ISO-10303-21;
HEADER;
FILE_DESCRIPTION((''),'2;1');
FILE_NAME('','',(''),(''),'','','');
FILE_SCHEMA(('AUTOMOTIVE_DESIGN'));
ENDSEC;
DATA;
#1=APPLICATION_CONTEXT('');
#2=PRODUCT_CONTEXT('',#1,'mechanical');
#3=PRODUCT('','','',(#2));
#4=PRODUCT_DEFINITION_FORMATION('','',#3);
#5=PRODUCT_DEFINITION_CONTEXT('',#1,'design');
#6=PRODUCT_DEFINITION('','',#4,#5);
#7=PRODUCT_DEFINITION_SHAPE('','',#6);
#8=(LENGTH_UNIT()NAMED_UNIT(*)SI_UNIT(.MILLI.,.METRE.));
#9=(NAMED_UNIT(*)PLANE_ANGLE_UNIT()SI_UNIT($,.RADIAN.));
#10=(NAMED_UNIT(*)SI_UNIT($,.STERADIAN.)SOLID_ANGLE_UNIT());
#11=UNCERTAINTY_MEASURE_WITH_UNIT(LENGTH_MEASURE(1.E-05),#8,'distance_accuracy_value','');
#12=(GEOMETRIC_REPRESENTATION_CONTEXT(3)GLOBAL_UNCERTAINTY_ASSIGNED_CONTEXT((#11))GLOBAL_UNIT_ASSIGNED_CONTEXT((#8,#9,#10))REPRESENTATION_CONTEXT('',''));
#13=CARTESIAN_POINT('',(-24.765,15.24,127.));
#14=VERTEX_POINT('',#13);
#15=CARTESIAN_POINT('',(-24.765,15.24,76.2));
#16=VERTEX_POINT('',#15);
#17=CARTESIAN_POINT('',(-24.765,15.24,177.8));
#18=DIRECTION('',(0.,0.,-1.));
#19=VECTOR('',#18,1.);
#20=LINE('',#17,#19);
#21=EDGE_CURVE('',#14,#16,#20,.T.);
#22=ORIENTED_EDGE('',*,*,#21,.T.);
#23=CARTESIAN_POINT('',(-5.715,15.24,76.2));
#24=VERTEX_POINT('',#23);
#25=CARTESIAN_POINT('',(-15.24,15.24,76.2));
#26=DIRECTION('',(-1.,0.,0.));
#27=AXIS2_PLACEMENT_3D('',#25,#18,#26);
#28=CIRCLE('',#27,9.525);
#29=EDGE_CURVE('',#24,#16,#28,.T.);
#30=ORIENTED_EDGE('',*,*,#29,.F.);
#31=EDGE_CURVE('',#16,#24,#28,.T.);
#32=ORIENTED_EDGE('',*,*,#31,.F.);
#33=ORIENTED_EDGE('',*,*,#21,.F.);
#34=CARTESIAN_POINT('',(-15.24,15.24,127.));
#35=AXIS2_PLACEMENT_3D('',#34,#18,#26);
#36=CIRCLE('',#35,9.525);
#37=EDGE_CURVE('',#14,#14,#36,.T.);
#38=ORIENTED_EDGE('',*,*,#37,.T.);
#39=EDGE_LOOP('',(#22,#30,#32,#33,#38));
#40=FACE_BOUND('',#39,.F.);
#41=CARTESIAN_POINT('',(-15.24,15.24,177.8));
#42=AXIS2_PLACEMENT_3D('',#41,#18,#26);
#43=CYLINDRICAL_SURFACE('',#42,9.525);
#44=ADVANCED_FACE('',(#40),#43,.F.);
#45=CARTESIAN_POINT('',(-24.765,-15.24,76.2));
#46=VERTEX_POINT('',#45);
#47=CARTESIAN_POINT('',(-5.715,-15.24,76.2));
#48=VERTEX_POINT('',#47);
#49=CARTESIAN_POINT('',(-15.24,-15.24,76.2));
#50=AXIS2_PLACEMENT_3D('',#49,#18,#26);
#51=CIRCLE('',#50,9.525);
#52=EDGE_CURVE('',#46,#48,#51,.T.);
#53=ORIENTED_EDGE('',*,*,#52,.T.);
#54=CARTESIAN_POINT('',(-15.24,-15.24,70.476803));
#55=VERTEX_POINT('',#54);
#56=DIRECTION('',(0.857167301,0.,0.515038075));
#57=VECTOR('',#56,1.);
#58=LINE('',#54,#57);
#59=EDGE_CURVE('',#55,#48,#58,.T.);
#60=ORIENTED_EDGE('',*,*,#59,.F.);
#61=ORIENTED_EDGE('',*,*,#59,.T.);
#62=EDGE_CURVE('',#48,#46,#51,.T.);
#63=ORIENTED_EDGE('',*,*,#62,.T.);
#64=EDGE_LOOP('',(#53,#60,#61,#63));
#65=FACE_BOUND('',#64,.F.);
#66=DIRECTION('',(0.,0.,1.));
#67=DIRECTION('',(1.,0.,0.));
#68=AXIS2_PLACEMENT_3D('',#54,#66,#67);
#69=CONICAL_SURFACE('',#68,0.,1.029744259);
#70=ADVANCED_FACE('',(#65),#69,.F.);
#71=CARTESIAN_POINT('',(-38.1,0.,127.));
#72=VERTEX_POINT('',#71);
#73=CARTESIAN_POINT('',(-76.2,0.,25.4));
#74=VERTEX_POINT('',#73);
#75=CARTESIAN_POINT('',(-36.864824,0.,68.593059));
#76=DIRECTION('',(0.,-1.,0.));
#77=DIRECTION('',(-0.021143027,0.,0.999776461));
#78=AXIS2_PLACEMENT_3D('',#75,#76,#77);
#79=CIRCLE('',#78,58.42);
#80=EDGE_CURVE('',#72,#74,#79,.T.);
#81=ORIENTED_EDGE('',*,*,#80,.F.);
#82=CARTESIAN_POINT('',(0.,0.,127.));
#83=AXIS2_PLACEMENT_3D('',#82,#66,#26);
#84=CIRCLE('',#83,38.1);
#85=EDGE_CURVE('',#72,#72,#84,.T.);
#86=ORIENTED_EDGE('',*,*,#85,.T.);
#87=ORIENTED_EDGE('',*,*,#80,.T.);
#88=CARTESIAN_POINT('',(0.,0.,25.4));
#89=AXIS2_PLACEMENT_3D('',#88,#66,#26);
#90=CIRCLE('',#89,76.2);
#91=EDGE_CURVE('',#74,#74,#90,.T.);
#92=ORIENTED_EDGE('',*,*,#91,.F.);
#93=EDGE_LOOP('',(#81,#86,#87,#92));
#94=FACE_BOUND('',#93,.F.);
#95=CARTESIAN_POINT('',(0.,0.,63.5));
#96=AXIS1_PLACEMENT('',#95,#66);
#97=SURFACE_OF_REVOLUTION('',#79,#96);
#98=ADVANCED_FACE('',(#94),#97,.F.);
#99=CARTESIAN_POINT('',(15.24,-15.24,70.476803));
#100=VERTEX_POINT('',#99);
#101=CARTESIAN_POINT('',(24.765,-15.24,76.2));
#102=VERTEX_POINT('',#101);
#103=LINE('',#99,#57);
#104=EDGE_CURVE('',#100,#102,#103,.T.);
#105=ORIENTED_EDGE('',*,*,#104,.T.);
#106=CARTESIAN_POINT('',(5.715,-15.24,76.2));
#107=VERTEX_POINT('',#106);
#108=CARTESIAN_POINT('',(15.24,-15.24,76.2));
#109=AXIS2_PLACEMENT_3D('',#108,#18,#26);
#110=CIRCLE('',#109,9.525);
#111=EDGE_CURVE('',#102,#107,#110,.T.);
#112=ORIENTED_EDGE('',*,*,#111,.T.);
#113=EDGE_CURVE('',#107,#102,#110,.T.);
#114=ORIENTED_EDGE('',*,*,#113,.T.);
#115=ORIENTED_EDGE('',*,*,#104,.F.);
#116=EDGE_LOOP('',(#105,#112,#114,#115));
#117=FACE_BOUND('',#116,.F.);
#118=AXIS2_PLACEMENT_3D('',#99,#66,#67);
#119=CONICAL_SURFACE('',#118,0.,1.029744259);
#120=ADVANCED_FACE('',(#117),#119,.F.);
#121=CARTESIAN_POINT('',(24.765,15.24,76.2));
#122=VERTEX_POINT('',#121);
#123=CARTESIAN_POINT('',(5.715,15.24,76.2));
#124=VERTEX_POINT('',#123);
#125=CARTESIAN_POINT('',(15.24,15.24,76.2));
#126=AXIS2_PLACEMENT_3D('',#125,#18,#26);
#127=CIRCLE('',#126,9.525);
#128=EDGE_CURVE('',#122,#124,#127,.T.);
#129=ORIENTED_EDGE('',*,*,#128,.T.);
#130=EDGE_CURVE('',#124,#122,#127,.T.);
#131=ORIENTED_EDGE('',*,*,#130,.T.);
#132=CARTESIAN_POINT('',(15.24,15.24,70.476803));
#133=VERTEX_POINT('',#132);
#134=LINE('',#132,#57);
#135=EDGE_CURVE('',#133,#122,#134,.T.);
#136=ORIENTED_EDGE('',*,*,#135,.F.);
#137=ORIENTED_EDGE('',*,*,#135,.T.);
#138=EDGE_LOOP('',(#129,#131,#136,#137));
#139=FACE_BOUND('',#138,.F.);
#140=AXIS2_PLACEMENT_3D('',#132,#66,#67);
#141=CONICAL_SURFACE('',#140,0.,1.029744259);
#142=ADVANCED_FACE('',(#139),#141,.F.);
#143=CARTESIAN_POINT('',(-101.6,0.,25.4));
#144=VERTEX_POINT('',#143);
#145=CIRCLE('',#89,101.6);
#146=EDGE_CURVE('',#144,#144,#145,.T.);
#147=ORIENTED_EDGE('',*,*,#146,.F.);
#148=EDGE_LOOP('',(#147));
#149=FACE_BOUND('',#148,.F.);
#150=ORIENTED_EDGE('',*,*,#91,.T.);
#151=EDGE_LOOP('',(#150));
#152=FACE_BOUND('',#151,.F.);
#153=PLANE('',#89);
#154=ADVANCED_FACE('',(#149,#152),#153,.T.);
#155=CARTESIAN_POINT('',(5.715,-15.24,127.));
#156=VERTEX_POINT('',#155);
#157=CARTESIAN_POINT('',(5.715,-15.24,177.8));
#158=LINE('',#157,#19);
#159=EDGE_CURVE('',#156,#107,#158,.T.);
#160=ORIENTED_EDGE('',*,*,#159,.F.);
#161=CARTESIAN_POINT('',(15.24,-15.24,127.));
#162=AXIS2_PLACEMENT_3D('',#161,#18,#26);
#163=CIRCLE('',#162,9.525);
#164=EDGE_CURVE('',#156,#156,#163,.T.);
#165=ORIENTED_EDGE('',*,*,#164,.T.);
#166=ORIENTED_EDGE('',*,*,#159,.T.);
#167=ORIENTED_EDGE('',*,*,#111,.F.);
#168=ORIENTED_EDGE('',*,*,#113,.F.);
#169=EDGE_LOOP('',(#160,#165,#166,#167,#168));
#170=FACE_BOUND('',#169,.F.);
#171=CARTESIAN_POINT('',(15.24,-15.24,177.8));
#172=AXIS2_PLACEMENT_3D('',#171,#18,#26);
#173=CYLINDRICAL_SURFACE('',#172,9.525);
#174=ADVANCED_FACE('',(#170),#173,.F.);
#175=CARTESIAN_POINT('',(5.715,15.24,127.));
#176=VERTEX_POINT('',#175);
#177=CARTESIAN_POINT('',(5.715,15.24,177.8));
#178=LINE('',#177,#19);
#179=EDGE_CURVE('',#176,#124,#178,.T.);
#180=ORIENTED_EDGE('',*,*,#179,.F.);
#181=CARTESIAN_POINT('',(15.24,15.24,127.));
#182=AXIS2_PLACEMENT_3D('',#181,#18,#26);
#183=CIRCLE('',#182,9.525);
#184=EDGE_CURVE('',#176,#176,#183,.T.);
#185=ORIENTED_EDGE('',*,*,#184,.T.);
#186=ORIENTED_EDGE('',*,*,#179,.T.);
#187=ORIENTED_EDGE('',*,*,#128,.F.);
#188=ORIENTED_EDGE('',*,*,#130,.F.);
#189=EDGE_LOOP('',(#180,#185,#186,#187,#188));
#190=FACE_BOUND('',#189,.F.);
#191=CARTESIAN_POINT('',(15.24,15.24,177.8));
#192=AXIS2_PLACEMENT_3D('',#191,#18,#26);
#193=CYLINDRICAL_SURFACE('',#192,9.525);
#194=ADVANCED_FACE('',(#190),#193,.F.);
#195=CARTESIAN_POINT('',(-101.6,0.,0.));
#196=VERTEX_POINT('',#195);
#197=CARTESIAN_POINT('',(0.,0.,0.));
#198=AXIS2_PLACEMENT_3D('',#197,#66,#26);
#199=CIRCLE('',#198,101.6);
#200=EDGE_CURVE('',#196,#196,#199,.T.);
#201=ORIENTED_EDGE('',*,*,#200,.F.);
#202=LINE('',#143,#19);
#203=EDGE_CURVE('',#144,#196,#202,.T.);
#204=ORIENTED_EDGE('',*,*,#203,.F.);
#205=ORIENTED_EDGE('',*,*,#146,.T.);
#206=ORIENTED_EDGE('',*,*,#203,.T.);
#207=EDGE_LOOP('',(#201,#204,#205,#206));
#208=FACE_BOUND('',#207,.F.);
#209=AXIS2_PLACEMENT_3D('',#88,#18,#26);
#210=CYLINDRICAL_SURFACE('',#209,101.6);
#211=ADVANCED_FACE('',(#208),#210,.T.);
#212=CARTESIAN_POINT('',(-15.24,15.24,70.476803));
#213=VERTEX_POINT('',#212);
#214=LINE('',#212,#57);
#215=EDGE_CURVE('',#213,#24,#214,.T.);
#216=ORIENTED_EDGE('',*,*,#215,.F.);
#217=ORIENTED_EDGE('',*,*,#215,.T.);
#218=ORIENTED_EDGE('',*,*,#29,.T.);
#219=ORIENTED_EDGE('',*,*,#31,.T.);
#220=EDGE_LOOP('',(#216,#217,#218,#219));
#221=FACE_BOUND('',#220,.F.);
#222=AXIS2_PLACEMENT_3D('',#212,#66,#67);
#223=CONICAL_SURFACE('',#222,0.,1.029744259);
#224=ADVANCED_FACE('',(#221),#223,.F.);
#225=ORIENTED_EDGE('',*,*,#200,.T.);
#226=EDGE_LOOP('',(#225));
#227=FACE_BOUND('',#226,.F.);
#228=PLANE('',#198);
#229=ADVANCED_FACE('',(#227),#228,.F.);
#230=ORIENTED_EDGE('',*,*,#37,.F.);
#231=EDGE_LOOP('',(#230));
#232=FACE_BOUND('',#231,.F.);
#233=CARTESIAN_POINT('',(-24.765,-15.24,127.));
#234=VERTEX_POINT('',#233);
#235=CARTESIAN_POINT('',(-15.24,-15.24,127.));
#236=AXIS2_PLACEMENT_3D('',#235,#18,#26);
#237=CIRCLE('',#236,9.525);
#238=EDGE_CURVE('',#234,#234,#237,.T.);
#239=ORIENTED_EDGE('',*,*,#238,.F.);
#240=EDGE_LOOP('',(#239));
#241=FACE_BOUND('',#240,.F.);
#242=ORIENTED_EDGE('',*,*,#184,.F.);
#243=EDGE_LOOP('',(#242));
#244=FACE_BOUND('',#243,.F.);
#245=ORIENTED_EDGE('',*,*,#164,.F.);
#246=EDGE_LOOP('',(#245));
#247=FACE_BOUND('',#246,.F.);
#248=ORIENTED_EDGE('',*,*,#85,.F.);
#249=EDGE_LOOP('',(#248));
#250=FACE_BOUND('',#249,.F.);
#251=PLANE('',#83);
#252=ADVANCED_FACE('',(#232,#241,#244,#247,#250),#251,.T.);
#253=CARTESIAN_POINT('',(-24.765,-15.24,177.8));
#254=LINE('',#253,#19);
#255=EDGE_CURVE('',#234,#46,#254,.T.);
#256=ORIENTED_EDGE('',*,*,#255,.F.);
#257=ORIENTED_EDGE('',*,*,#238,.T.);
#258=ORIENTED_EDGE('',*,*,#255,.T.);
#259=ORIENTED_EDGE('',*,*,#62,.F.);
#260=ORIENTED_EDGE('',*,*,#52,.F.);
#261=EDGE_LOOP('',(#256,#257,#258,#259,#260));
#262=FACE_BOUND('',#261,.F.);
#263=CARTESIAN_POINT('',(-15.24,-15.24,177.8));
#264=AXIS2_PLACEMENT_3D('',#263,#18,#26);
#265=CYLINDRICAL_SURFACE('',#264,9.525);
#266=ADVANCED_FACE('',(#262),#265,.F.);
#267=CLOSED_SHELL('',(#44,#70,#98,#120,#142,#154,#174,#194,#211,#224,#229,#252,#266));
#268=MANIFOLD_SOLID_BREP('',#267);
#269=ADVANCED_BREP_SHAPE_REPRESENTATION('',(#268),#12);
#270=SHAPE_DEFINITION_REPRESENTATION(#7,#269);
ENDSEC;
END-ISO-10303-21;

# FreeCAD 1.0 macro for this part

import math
import FreeCAD as App
import Part
import Sketcher
from FreeCAD import Vector
Q = App.Units.Quantity

doc = App.newDocument("Part")
body = doc.addObject("PartDesign::Body", "Body")

sketch1 = body.newObject("Sketcher::SketchObject", "Sketch")
sketch1.AttachmentSupport = (doc.getObject("XZ_Plane"), [""])
sketch1.MapMode = "FlatFace"
sketch1.addGeometry([
    Part.LineSegment(Vector(-102, 0, 0), Vector(0, 0, 0)),
    Part.LineSegment(Vector(0, 0, 0), Vector(0, 127, 0)),
    Part.LineSegment(Vector(0, 127, 0), Vector(-38, 127, 0)),
    Part.ArcOfCircle(Part.Circle(Vector(-37, 69, 0), Vector(0, 0, 1), 58), math.radians(91), math.radians(228)),
    Part.LineSegment(Vector(-76, 25, 0), Vector(-102, 25, 0)),
    Part.LineSegment(Vector(-102, 25, 0), Vector(-102, 0, 0)),
], False)
sketch1.addConstraint([
    Sketcher.Constraint("Coincident", 0, 2, 1, 1),
    Sketcher.Constraint("Coincident", 1, 2, 2, 1),
    Sketcher.Constraint("Coincident", 2, 2, 3, 1),
    Sketcher.Constraint("Coincident", 3, 2, 4, 1),
    Sketcher.Constraint("Coincident", 4, 2, 5, 1),
    Sketcher.Constraint("Coincident", 5, 2, 0, 1),
    Sketcher.Constraint("Horizontal", 0),
    Sketcher.Constraint("Vertical", 1),
    Sketcher.Constraint("Horizontal", 2),
    Sketcher.Constraint("Horizontal", 4),
    Sketcher.Constraint("Vertical", 5),
    Sketcher.Constraint("Coincident", 0, 2, -1, 1),
    Sketcher.Constraint("Equal", 4, 5),
    Sketcher.Constraint("Radius", 3, Q("2.3 in")),
    Sketcher.Constraint("DistanceX", 0, 1, 0, 2, Q("4 in")),
    Sketcher.Constraint("DistanceX", 4, 2, 4, 1, Q("1 in")),
    Sketcher.Constraint("DistanceY", 1, 1, 1, 2, Q("5 in")),
    Sketcher.Constraint("DistanceX", 2, 2, 2, 1, Q("1.5 in")),
])
revolution = body.newObject("PartDesign::Revolution", "Revolution")
revolution.Profile = sketch1
revolution.ReferenceAxis = (sketch1, ["V_Axis"])
revolution.Angle = 360

sketch2 = body.newObject("Sketcher::SketchObject", "Sketch001")
sketch2.AttachmentSupport = (doc.getObject("XY_Plane"), [""])
sketch2.MapMode = "FlatFace"
sketch2.AttachmentOffset = App.Placement(Vector(0, 0, 5 * 25.4), App.Rotation())
sketch2.addGeometry([
    Part.Circle(Vector(-15, 15, 0), Vector(0, 0, 1), 10),
    Part.Circle(Vector(15, 15, 0), Vector(0, 0, 1), 10),
    Part.Circle(Vector(15, -15, 0), Vector(0, 0, 1), 10),
    Part.Circle(Vector(-15, -15, 0), Vector(0, 0, 1), 10),
], False)
sketch2.addConstraint([
    Sketcher.Constraint("Equal", 0, 1),
    Sketcher.Constraint("Equal", 1, 2),
    Sketcher.Constraint("Equal", 2, 3),
    Sketcher.Constraint("Symmetric", 0, 3, 2, 3, -1, 1),
    Sketcher.Constraint("Symmetric", 1, 3, 3, 3, -1, 1),
    Sketcher.Constraint("Symmetric", 0, 3, 1, 3, -2),
    Sketcher.Constraint("Diameter", 0, Q("0.75 in")),
    Sketcher.Constraint("DistanceX", 0, 3, -1, 1, Q("0.6 in")),
    Sketcher.Constraint("DistanceY", -1, 1, 0, 3, Q("0.6 in")),
])
doc.recompute()
hole = body.newObject("PartDesign::Hole", "Hole")
hole.Profile = sketch2
hole.ThreadType = "None"
hole.Diameter = Q("0.75 in")
hole.DepthType = "Dimension"
hole.Depth = Q("2 in")
hole.DrillPoint = "Angled"
hole.DrillPointAngle = 118

doc.recompute()
